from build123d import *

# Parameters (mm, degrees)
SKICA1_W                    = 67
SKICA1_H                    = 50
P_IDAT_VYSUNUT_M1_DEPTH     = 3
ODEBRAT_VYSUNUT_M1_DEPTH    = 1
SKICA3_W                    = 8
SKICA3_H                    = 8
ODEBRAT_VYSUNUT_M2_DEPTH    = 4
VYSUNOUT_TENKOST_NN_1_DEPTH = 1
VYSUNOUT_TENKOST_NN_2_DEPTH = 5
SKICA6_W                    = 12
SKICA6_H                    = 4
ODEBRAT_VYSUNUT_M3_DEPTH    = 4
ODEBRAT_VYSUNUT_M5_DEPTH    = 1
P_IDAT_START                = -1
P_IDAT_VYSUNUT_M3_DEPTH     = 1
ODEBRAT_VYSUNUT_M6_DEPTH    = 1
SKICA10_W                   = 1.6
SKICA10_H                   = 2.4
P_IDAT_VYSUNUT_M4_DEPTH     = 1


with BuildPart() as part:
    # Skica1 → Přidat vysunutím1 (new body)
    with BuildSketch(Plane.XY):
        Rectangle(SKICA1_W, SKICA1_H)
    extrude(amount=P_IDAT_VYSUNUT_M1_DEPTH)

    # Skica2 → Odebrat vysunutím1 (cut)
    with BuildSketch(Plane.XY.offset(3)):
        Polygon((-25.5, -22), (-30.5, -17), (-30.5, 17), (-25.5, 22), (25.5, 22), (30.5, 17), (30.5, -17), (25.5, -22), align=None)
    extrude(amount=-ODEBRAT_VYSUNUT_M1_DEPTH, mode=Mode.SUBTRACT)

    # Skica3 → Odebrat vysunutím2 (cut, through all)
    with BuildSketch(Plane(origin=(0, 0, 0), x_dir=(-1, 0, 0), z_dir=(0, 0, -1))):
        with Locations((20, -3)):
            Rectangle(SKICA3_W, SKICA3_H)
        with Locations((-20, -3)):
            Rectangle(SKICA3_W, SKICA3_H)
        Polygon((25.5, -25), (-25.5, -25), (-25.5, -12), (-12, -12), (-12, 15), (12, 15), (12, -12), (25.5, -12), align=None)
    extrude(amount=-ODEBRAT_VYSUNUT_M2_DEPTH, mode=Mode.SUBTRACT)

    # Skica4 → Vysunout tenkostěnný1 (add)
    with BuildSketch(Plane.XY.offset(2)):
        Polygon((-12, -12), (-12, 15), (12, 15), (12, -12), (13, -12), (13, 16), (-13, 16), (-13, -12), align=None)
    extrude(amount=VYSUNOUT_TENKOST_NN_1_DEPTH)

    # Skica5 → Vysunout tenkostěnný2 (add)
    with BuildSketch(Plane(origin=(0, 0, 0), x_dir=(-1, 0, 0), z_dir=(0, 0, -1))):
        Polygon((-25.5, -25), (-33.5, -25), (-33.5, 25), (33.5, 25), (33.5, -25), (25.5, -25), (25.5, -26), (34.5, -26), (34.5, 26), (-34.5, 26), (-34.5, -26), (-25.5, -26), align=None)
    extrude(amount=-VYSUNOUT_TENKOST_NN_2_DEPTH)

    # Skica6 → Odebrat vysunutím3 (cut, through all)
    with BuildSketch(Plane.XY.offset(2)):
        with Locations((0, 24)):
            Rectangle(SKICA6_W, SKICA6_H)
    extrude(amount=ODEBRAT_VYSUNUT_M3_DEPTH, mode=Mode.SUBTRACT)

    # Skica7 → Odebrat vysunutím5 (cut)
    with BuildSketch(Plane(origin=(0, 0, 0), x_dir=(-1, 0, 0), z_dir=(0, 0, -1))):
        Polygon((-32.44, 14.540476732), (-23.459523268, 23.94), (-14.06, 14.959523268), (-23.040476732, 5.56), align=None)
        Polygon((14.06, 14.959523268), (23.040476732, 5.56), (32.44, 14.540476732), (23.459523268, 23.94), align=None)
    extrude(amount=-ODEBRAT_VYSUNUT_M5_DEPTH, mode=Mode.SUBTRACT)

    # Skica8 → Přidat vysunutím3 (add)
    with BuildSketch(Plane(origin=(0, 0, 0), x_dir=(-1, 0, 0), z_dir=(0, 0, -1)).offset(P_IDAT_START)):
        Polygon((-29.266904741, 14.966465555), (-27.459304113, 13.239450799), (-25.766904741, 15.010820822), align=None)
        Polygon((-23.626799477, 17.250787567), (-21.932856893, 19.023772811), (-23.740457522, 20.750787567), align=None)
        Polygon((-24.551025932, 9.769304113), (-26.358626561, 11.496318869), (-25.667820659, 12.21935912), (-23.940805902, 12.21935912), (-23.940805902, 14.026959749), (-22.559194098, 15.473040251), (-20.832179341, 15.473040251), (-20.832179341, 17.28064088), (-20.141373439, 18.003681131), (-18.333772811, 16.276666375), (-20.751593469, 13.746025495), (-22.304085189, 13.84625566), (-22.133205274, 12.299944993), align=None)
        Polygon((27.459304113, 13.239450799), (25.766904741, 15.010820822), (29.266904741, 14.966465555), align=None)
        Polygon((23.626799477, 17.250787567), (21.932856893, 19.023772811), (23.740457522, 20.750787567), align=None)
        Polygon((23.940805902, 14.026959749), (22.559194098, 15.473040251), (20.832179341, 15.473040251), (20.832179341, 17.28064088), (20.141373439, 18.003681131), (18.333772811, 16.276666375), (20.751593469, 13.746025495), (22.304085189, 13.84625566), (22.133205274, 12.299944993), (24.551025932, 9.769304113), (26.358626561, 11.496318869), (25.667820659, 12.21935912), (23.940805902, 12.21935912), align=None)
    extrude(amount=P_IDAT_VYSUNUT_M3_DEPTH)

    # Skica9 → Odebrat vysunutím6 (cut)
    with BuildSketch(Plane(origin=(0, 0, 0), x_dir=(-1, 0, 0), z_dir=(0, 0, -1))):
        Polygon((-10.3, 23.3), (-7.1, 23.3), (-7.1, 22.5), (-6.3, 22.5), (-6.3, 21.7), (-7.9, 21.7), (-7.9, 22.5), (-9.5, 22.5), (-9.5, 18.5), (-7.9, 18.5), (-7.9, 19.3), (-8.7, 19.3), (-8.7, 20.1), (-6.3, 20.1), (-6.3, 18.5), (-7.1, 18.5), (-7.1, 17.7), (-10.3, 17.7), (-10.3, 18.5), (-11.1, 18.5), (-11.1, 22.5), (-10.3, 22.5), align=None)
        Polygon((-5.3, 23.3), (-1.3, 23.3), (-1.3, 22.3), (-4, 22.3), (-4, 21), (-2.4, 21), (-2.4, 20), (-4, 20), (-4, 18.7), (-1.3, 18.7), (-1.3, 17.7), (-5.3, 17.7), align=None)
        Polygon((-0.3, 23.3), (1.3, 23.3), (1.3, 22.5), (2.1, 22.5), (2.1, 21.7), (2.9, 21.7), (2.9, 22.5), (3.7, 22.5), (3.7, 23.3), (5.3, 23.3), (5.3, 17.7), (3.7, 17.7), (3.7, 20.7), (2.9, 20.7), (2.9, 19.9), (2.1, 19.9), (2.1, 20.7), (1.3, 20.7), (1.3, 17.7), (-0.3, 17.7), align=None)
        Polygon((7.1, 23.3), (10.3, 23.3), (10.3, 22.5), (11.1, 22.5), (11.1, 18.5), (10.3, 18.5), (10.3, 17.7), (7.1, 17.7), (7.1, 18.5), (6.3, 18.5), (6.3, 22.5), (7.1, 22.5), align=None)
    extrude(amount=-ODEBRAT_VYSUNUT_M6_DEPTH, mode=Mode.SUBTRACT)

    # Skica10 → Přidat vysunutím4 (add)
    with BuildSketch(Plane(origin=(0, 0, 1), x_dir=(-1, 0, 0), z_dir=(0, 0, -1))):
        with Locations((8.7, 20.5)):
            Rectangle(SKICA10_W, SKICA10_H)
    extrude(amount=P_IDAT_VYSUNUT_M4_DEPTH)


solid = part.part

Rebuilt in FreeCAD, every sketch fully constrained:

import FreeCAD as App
import Part
import Sketcher

V = App.Vector


def add_polygon(sketch, points):
    """Adds a closed chain of lines whose ends are joined by coincident constraints."""
    first, n = sketch.GeometryCount, len(points)
    for a, b in zip(points, points[1:] + points[:1]):
        sketch.addGeometry(Part.LineSegment(App.Vector(*a, 0), App.Vector(*b, 0)), False)
    for i in range(n):
        sketch.addConstraint(Sketcher.Constraint("Coincident", first + i, 2, first + (i + 1) % n, 1))

doc = App.newDocument("Part")
body = doc.addObject("PartDesign::Body", "Body")

sketch1 = doc.addObject("Sketcher::SketchObject", "Sketch")
body.addObject(sketch1)
sketch1.AttachmentSupport = (doc.XY_Plane, [""])
sketch1.MapMode = "FlatFace"
add_polygon(sketch1, [(-34, 25), (-34, -25), (34, -25), (34, 25)])
sketch1.addConstraint([
    Sketcher.Constraint("Vertical", 0),
    Sketcher.Constraint("Horizontal", 1),
    Sketcher.Constraint("Vertical", 2),
    Sketcher.Constraint("Horizontal", 3),
    Sketcher.Constraint("Symmetric", 0, 2, 2, 2, -1, 1),
    Sketcher.Constraint("DistanceX", 1, 1, 1, 2, 67.0),
    Sketcher.Constraint("DistanceY", 0, 2, 0, 1, 50.0),
])
pad1 = doc.addObject("PartDesign::Pad", "Pad")
body.addObject(pad1)
pad1.Profile = sketch1
pad1.Length = 3

sketch2 = doc.addObject("Sketcher::SketchObject", "Sketch001")
body.addObject(sketch2)
sketch2.AttachmentSupport = (doc.XY_Plane, [""])
sketch2.MapMode = "FlatFace"
sketch2.AttachmentOffset = App.Placement(V(0, 0, 3), App.Rotation())
add_polygon(sketch2, [(-30, -17), (-26, -22), (26, -22), (30, -17), (30, 17), (26, 22), (-26, 22), (-30, 17)])
sketch2.addConstraint([
    Sketcher.Constraint("Horizontal", 1),
    Sketcher.Constraint("Vertical", 3),
    Sketcher.Constraint("Horizontal", 5),
    Sketcher.Constraint("Vertical", 7),
    Sketcher.Constraint("Symmetric", 0, 2, 4, 2, -1, 1),
    Sketcher.Constraint("Symmetric", 2, 2, 6, 2, -1, 1),
    Sketcher.Constraint("Perpendicular", 0, 2),
    Sketcher.Constraint("Perpendicular", 2, 4),
    Sketcher.Constraint("Perpendicular", 4, 6),
    Sketcher.Constraint("Horizontal", 3, 2, 6, 2),
    Sketcher.Constraint("Vertical", 1, 2, 4, 2),
    Sketcher.Constraint("DistanceX", 1, 1, 1, 2, 51.0),
    Sketcher.Constraint("DistanceY", 3, 1, 3, 2, 34.0),
    Sketcher.Constraint("DistanceY", 0, 2, -1, 1, 22.0),
])
pocket1 = doc.addObject("PartDesign::Pocket", "Pocket")
body.addObject(pocket1)
pocket1.Profile = sketch2
pocket1.Length = 1

sketch3 = doc.addObject("Sketcher::SketchObject", "Sketch002")
body.addObject(sketch3)
sketch3.AttachmentSupport = (doc.XY_Plane, [""])
sketch3.MapMode = "FlatFace"
add_polygon(sketch3, [(-16, 1), (-16, -7), (-24, -7), (-24, 1)])
add_polygon(sketch3, [(24, 1), (24, -7), (16, -7), (16, 1)])
add_polygon(sketch3, [(26, -25), (-26, -25), (-26, -12), (-12, -12), (-12, 15), (12, 15), (12, -12), (26, -12)])
sketch3.addConstraint([
    Sketcher.Constraint("Vertical", 0),
    Sketcher.Constraint("Horizontal", 1),
    Sketcher.Constraint("Vertical", 2),
    Sketcher.Constraint("Horizontal", 3),
    Sketcher.Constraint("Vertical", 4),
    Sketcher.Constraint("Horizontal", 5),
    Sketcher.Constraint("Vertical", 6),
    Sketcher.Constraint("Horizontal", 7),
    Sketcher.Constraint("Horizontal", 8),
    Sketcher.Constraint("Vertical", 9),
    Sketcher.Constraint("Horizontal", 10),
    Sketcher.Constraint("Vertical", 11),
    Sketcher.Constraint("Horizontal", 12),
    Sketcher.Constraint("Vertical", 13),
    Sketcher.Constraint("Horizontal", 14),
    Sketcher.Constraint("Vertical", 15),
    Sketcher.Constraint("Symmetric", 1, 2, 4, 2, -2),
    Sketcher.Constraint("Symmetric", 3, 2, 6, 2, -2),
    Sketcher.Constraint("Symmetric", 10, 2, 13, 2, -2),
    Sketcher.Constraint("Equal", 10, 14),
    Sketcher.Constraint("Equal", 7, 0),
    Sketcher.Constraint("DistanceX", 1, 2, 1, 1, 8.0),
    Sketcher.Constraint("DistanceX", 8, 2, 8, 1, 51.0),
    Sketcher.Constraint("DistanceX", 12, 1, 12, 2, 24.0),
    Sketcher.Constraint("DistanceY", 9, 1, 9, 2, 13.0),
    Sketcher.Constraint("DistanceY", 11, 1, 11, 2, 27.0),
    Sketcher.Constraint("DistanceX", 0, 2, -1, 1, 16.0),
    Sketcher.Constraint("DistanceY", 0, 2, -1, 1, 7.0),
    Sketcher.Constraint("DistanceY", 8, 2, -1, 1, 25.0),
])
pocket2 = doc.addObject("PartDesign::Pocket", "Pocket001")
body.addObject(pocket2)
pocket2.Profile = sketch3
pocket2.Type = "ThroughAll"
pocket2.Reversed = True

sketch4 = doc.addObject("Sketcher::SketchObject", "Sketch003")
body.addObject(sketch4)
sketch4.AttachmentSupport = (doc.XY_Plane, [""])
sketch4.MapMode = "FlatFace"
sketch4.AttachmentOffset = App.Placement(V(0, 0, 2), App.Rotation())
add_polygon(sketch4, [(-12, -12), (-12, 15), (12, 15), (12, -12), (13, -12), (13, 16), (-13, 16), (-13, -12)])
sketch4.addConstraint([
    Sketcher.Constraint("Vertical", 0),
    Sketcher.Constraint("Horizontal", 1),
    Sketcher.Constraint("Vertical", 2),
    Sketcher.Constraint("Horizontal", 3),
    Sketcher.Constraint("Vertical", 4),
    Sketcher.Constraint("Horizontal", 5),
    Sketcher.Constraint("Vertical", 6),
    Sketcher.Constraint("Horizontal", 7),
    Sketcher.Constraint("Symmetric", 3, 2, 6, 2, -2),
    Sketcher.Constraint("Equal", 3, 7),
    Sketcher.Constraint("DistanceX", 1, 1, 1, 2, 24.0),
    Sketcher.Constraint("DistanceX", 3, 1, 3, 2, 1.0),
    Sketcher.Constraint("DistanceY", 0, 1, 0, 2, 27.0),
    Sketcher.Constraint("DistanceY", 4, 1, 4, 2, 28.0),
    Sketcher.Constraint("DistanceY", -1, 1, 0, 2, 15.0),
])
pad2 = doc.addObject("PartDesign::Pad", "Pad001")
body.addObject(pad2)
pad2.Profile = sketch4
pad2.Length = 1

sketch5 = doc.addObject("Sketcher::SketchObject", "Sketch004")
body.addObject(sketch5)
sketch5.AttachmentSupport = (doc.XY_Plane, [""])
sketch5.MapMode = "FlatFace"
add_polygon(sketch5, [(25.5, -25), (33.5, -25), (33.5, 25), (-33.5, 25), (-33.5, -25), (-25.5, -25), (-25.5, -26), (-34.5, -26), (-34.5, 26), (34.5, 26), (34.5, -26), (25.5, -26)])
sketch5.addConstraint([
    Sketcher.Constraint("Horizontal", 0),
    Sketcher.Constraint("Vertical", 1),
    Sketcher.Constraint("Horizontal", 2),
    Sketcher.Constraint("Vertical", 3),
    Sketcher.Constraint("Horizontal", 4),
    Sketcher.Constraint("Vertical", 5),
    Sketcher.Constraint("Horizontal", 6),
    Sketcher.Constraint("Vertical", 7),
    Sketcher.Constraint("Horizontal", 8),
    Sketcher.Constraint("Vertical", 9),
    Sketcher.Constraint("Horizontal", 10),
    Sketcher.Constraint("Vertical", 11),
    Sketcher.Constraint("Symmetric", 0, 2, 2, 2, -1, 1),
    Sketcher.Constraint("Symmetric", 6, 2, 8, 2, -1, 1),
    Sketcher.Constraint("Symmetric", 5, 2, 10, 2, -2),
    Sketcher.Constraint("Horizontal", 0, 2, 3, 2),
    Sketcher.Constraint("DistanceX", 0, 1, 0, 2, 8.0),
    Sketcher.Constraint("DistanceX", 2, 2, 2, 1, 67.0),
    Sketcher.Constraint("DistanceX", 6, 2, 6, 1, 9.0),
    Sketcher.Constraint("DistanceY", 1, 1, 1, 2, 50.0),
    Sketcher.Constraint("DistanceY", 5, 2, 5, 1, 1.0),
])
pad3 = doc.addObject("PartDesign::Pad", "Pad002")
body.addObject(pad3)
pad3.Profile = sketch5
pad3.Length = 5

sketch6 = doc.addObject("Sketcher::SketchObject", "Sketch005")
body.addObject(sketch6)
sketch6.AttachmentSupport = (doc.XY_Plane, [""])
sketch6.MapMode = "FlatFace"
sketch6.AttachmentOffset = App.Placement(V(0, 0, 2), App.Rotation())
add_polygon(sketch6, [(-6, 26), (-6, 22), (6, 22), (6, 26)])
sketch6.addConstraint([
    Sketcher.Constraint("Vertical", 0),
    Sketcher.Constraint("Horizontal", 1),
    Sketcher.Constraint("Vertical", 2),
    Sketcher.Constraint("Horizontal", 3),
    Sketcher.Constraint("DistanceX", 1, 1, 1, 2, 12.0),
    Sketcher.Constraint("DistanceY", 0, 2, 0, 1, 4.0),
    Sketcher.Constraint("DistanceX", 0, 2, -1, 1, 6.0),
    Sketcher.Constraint("DistanceY", -1, 1, 0, 2, 22.0),
])
pocket3 = doc.addObject("PartDesign::Pocket", "Pocket002")
body.addObject(pocket3)
pocket3.Profile = sketch6
pocket3.Type = "ThroughAll"
pocket3.Reversed = True

sketch7 = doc.addObject("Sketcher::SketchObject", "Sketch006")
body.addObject(sketch7)
sketch7.AttachmentSupport = (doc.XY_Plane, [""])
sketch7.MapMode = "FlatFace"
add_polygon(sketch7, [(23.459523, 23.94), (32.44, 14.540477), (23.040477, 5.56), (14.06, 14.959523)])
add_polygon(sketch7, [(-14.06, 14.959523), (-23.040477, 5.56), (-32.44, 14.540477), (-23.459523, 23.94)])
sketch7.addConstraint([
    Sketcher.Constraint("Symmetric", 1, 2, 4, 2, -2),
    Sketcher.Constraint("Symmetric", 0, 2, 5, 2, -2),
    Sketcher.Constraint("Symmetric", 3, 2, 6, 2, -2),
    Sketcher.Constraint("Symmetric", 2, 2, 7, 2, -2),
    Sketcher.Constraint("Perpendicular", 0, 1),
    Sketcher.Constraint("Perpendicular", 1, 2),
    Sketcher.Constraint("Perpendicular", 2, 3),
    Sketcher.Constraint("Equal", 0, 1),
    Sketcher.Constraint("Distance", 0, 13.0),
    Sketcher.Constraint("DistanceX", 4, 2, 3, 2, 46.5),
    Sketcher.Constraint("DistanceX", -1, 1, 0, 2, 32.44),
    Sketcher.Constraint("DistanceY", -1, 1, 1, 2, 5.56),
])
pocket4 = doc.addObject("PartDesign::Pocket", "Pocket003")
body.addObject(pocket4)
pocket4.Profile = sketch7
pocket4.Length = 1
pocket4.Reversed = True

sketch8 = doc.addObject("Sketcher::SketchObject", "Sketch007")
body.addObject(sketch8)
sketch8.AttachmentSupport = (doc.XY_Plane, [""])
sketch8.MapMode = "FlatFace"
sketch8.AttachmentOffset = App.Placement(V(0, 0, 1), App.Rotation())
add_polygon(sketch8, [(29.3, 15), (27.5, 13.2), (25.8, 15)])
add_polygon(sketch8, [(23.6, 17.3), (21.9, 19), (23.7, 20.8)])
add_polygon(sketch8, [(26.4, 11.5), (24.6, 9.8), (22.1, 12.3), (22.3, 13.8), (20.8, 13.7), (18.3, 16.3), (20.1, 18), (20.8, 17.3), (20.8, 15.5), (22.6, 15.5), (23.9, 14), (23.9, 12.2), (25.7, 12.2)])
add_polygon(sketch8, [(-25.8, 15), (-27.5, 13.2), (-29.3, 15)])
add_polygon(sketch8, [(-21.9, 19), (-23.6, 17.3), (-23.7, 20.8)])
add_polygon(sketch8, [(-23.9, 14), (-22.6, 15.5), (-20.8, 15.5), (-20.8, 17.3), (-20.1, 18), (-18.3, 16.3), (-20.8, 13.7), (-22.3, 13.8), (-22.1, 12.3), (-24.6, 9.8), (-26.4, 11.5), (-25.7, 12.2), (-23.9, 12.2)])
sketch8.addConstraint([
    Sketcher.Constraint("Vertical", 13),
    Sketcher.Constraint("Horizontal", 14),
    Sketcher.Constraint("Vertical", 16),
    Sketcher.Constraint("Horizontal", 17),
    Sketcher.Constraint("Horizontal", 26),
    Sketcher.Constraint("Vertical", 27),
    Sketcher.Constraint("Horizontal", 36),
    Sketcher.Constraint("Vertical", 37),
    Sketcher.Constraint("Symmetric", 0, 2, 19, 2, -2),
    Sketcher.Constraint("Symmetric", 2, 2, 20, 2, -2),
    Sketcher.Constraint("Symmetric", 1, 2, 21, 2, -2),
    Sketcher.Constraint("Symmetric", 5, 2, 22, 2, -2),
    Sketcher.Constraint("Symmetric", 4, 2, 23, 2, -2),
    Sketcher.Constraint("Symmetric", 3, 2, 24, 2, -2),
    Sketcher.Constraint("Symmetric", 14, 2, 25, 2, -2),
    Sketcher.Constraint("Symmetric", 12, 2, 27, 2, -2),
    Sketcher.Constraint("Symmetric", 11, 2, 28, 2, -2),
    Sketcher.Constraint("Symmetric", 10, 2, 29, 2, -2),
    Sketcher.Constraint("Symmetric", 9, 2, 30, 2, -2),
    Sketcher.Constraint("Symmetric", 8, 2, 31, 2, -2),
    Sketcher.Constraint("Symmetric", 7, 2, 32, 2, -2),
    Sketcher.Constraint("Symmetric", 6, 2, 33, 2, -2),
    Sketcher.Constraint("Symmetric", 18, 2, 34, 2, -2),
    Sketcher.Constraint("Symmetric", 17, 2, 35, 2, -2),
    Sketcher.Constraint("Symmetric", 15, 2, 37, 2, -2),
    Sketcher.Constraint("Perpendicular", 0, 1),
    Sketcher.Constraint("Parallel", 1, 3),
    Sketcher.Constraint("Perpendicular", 3, 4),
    Sketcher.Constraint("Parallel", 4, 6),
    Sketcher.Constraint("Perpendicular", 6, 7),
    Sketcher.Constraint("Parallel", 7, 10),
    Sketcher.Constraint("Perpendicular", 10, 11),
    Sketcher.Constraint("Perpendicular", 11, 12),
    Sketcher.Constraint("Parallel", 12, 15),
    Sketcher.Constraint("Parallel", 15, 18),
    Sketcher.Constraint("Equal", 14, 17),
    Sketcher.Constraint("Equal", 13, 16),
    Sketcher.Constraint("Equal", 0, 4),
    Sketcher.Constraint("Equal", 4, 6),
    Sketcher.Constraint("Equal", 8, 9),
    Sketcher.Constraint("Equal", 7, 10),
    Sketcher.Constraint("Equal", 6, 11),
    Sketcher.Constraint("Equal", 12, 18),
    Sketcher.Constraint("Distance", 12, 1.0),
    Sketcher.Constraint("Distance", 15, 2.0),
    Sketcher.Constraint("Distance", 0, 2.5),
    Sketcher.Constraint("Distance", 7, 3.5),
    Sketcher.Constraint("DistanceX", 1, 2, 2, 2, 3.5),
    Sketcher.Constraint("DistanceY", 5, 2, 4, 2, 3.5),
    Sketcher.Constraint("DistanceY", 13, 2, 13, 1, 1.807601),
    Sketcher.Constraint("DistanceX", -1, 1, 5, 2, 23.626799),
    Sketcher.Constraint("DistanceX", 1, 2, 0, 2, 1.692399),
    Sketcher.Constraint("DistanceX", 7, 2, 1, 2, 3.633699),
    Sketcher.Constraint("DistanceX", 9, 2, 14, 2, 1.807601),
    Sketcher.Constraint("DistanceY", 20, 2, 10, 2, 1.310201),
    Sketcher.Constraint("DistanceX", 20, 2, 9, 2, 50.018498),
    Sketcher.Constraint("DistanceY", -1, 1, 0, 2, 13.239451),
    Sketcher.Constraint("DistanceY", 1, 2, 3, 2, 4.012952),
    Sketcher.Constraint("DistanceX", 7, 2, 8, 2, 0.17088),
])
pad4 = doc.addObject("PartDesign::Pad", "Pad003")
body.addObject(pad4)
pad4.Profile = sketch8
pad4.Length = 1
pad4.Reversed = True

sketch9 = doc.addObject("Sketcher::SketchObject", "Sketch008")
body.addObject(sketch9)
sketch9.AttachmentSupport = (doc.XY_Plane, [""])
sketch9.MapMode = "FlatFace"
add_polygon(sketch9, [(7.1, 23.3), (10.3, 23.3), (10.3, 22.5), (11.1, 22.5), (11.1, 18.5), (10.3, 18.5), (10.3, 17.7), (7.1, 17.7), (7.1, 18.5), (6.3, 18.5), (6.3, 20.1), (8.7, 20.1), (8.7, 19.3), (7.9, 19.3), (7.9, 18.5), (9.5, 18.5), (9.5, 22.5), (7.9, 22.5), (7.9, 21.7), (6.3, 21.7), (6.3, 22.5), (7.1, 22.5)])
add_polygon(sketch9, [(1.3, 23.3), (5.3, 23.3), (5.3, 17.7), (1.3, 17.7), (1.3, 18.7), (4, 18.7), (4, 20), (2.4, 20), (2.4, 21), (4, 21), (4, 22.3), (1.3, 22.3)])
add_polygon(sketch9, [(-1.3, 23.3), (0.3, 23.3), (0.3, 17.7), (-1.3, 17.7), (-1.3, 20.7), (-2.1, 20.7), (-2.1, 19.9), (-2.9, 19.9), (-2.9, 20.7), (-3.7, 20.7), (-3.7, 17.7), (-5.3, 17.7), (-5.3, 23.3), (-3.7, 23.3), (-3.7, 22.5), (-2.9, 22.5), (-2.9, 21.7), (-2.1, 21.7), (-2.1, 22.5), (-1.3, 22.5)])
add_polygon(sketch9, [(-10.3, 23.3), (-7.1, 23.3), (-7.1, 22.5), (-6.3, 22.5), (-6.3, 18.5), (-7.1, 18.5), (-7.1, 17.7), (-10.3, 17.7), (-10.3, 18.5), (-11.1, 18.5), (-11.1, 22.5), (-10.3, 22.5)])
sketch9.addConstraint([
    Sketcher.Constraint("Horizontal", 0),
    Sketcher.Constraint("Vertical", 1),
    Sketcher.Constraint("Horizontal", 2),
    Sketcher.Constraint("Vertical", 3),
    Sketcher.Constraint("Horizontal", 4),
    Sketcher.Constraint("Vertical", 5),
    Sketcher.Constraint("Horizontal", 6),
    Sketcher.Constraint("Vertical", 7),
    Sketcher.Constraint("Horizontal", 8),
    Sketcher.Constraint("Vertical", 9),
    Sketcher.Constraint("Horizontal", 10),
    Sketcher.Constraint("Vertical", 11),
    Sketcher.Constraint("Horizontal", 12),
    Sketcher.Constraint("Vertical", 13),
    Sketcher.Constraint("Horizontal", 14),
    Sketcher.Constraint("Vertical", 15),
    Sketcher.Constraint("Horizontal", 16),
    Sketcher.Constraint("Vertical", 17),
    Sketcher.Constraint("Horizontal", 18),
    Sketcher.Constraint("Vertical", 19),
    Sketcher.Constraint("Horizontal", 20),
    Sketcher.Constraint("Vertical", 21),
    Sketcher.Constraint("Horizontal", 22),
    Sketcher.Constraint("Vertical", 23),
    Sketcher.Constraint("Horizontal", 24),
    Sketcher.Constraint("Vertical", 25),
    Sketcher.Constraint("Horizontal", 26),
    Sketcher.Constraint("Vertical", 27),
    Sketcher.Constraint("Horizontal", 28),
    Sketcher.Constraint("Vertical", 29),
    Sketcher.Constraint("Horizontal", 30),
    Sketcher.Constraint("Vertical", 31),
    Sketcher.Constraint("Horizontal", 32),
    Sketcher.Constraint("Vertical", 33),
    Sketcher.Constraint("Horizontal", 34),
    Sketcher.Constraint("Vertical", 35),
    Sketcher.Constraint("Horizontal", 36),
    Sketcher.Constraint("Vertical", 37),
    Sketcher.Constraint("Horizontal", 38),
    Sketcher.Constraint("Vertical", 39),
    Sketcher.Constraint("Horizontal", 40),
    Sketcher.Constraint("Vertical", 41),
    Sketcher.Constraint("Horizontal", 42),
    Sketcher.Constraint("Vertical", 43),
    Sketcher.Constraint("Horizontal", 44),
    Sketcher.Constraint("Vertical", 45),
    Sketcher.Constraint("Horizontal", 46),
    Sketcher.Constraint("Vertical", 47),
    Sketcher.Constraint("Horizontal", 48),
    Sketcher.Constraint("Vertical", 49),
    Sketcher.Constraint("Horizontal", 50),
    Sketcher.Constraint("Vertical", 51),
    Sketcher.Constraint("Horizontal", 52),
    Sketcher.Constraint("Vertical", 53),
    Sketcher.Constraint("Horizontal", 54),
    Sketcher.Constraint("Vertical", 55),
    Sketcher.Constraint("Horizontal", 56),
    Sketcher.Constraint("Vertical", 57),
    Sketcher.Constraint("Horizontal", 58),
    Sketcher.Constraint("Vertical", 59),
    Sketcher.Constraint("Horizontal", 60),
    Sketcher.Constraint("Vertical", 61),
    Sketcher.Constraint("Horizontal", 62),
    Sketcher.Constraint("Vertical", 63),
    Sketcher.Constraint("Horizontal", 64),
    Sketcher.Constraint("Vertical", 65),
    Sketcher.Constraint("Symmetric", 24, 2, 36, 2, -2),
    Sketcher.Constraint("Symmetric", 23, 2, 44, 2, -2),
    Sketcher.Constraint("Symmetric", 33, 2, 53, 2, -2),
    Sketcher.Constraint("Symmetric", 21, 2, 54, 2, -2),
    Sketcher.Constraint("Symmetric", 19, 2, 56, 2, -2),
    Sketcher.Constraint("Symmetric", 8, 2, 57, 2, -2),
    Sketcher.Constraint("Symmetric", 6, 2, 59, 2, -2),
    Sketcher.Constraint("Symmetric", 4, 2, 61, 2, -2),
    Sketcher.Constraint("Symmetric", 2, 2, 63, 2, -2),
    Sketcher.Constraint("Horizontal", 4, 2, 7, 2),
    Sketcher.Constraint("Horizontal", 8, 2, 13, 2),
    Sketcher.Constraint("Horizontal", 2, 2, 15, 2),
    Sketcher.Constraint("Horizontal", 16, 2, 19, 2),
    Sketcher.Constraint("Horizontal", 21, 2, 22, 2),
    Sketcher.Constraint("Horizontal", 6, 2, 23, 2),
    Sketcher.Constraint("Horizontal", 38, 2, 41, 2),
    Sketcher.Constraint("Horizontal", 34, 2, 45, 2),
    Sketcher.Constraint("Horizontal", 20, 2, 47, 2),
    Sketcher.Constraint("Horizontal", 18, 2, 49, 2),
    Sketcher.Constraint("Horizontal", 48, 2, 51, 2),
    Sketcher.Constraint("Vertical", 1, 2, 4, 2),
    Sketcher.Constraint("Vertical", 13, 2, 16, 2),
    Sketcher.Constraint("Vertical", 7, 2, 20, 2),
    Sketcher.Constraint("Vertical", 27, 2, 30, 2),
    Sketcher.Constraint("Vertical", 25, 2, 32, 2),
    Sketcher.Constraint("Vertical", 43, 2, 46, 2),
    Sketcher.Constraint("Vertical", 41, 2, 48, 2),
    Sketcher.Constraint("Vertical", 39, 2, 50, 2),
    Sketcher.Constraint("Vertical", 61, 2, 64, 2),
    Sketcher.Constraint("Equal", 4, 8),
    Sketcher.Constraint("Equal", 8, 12),
    Sketcher.Constraint("Equal", 16, 18),
    Sketcher.Constraint("Equal", 18, 28),
    Sketcher.Constraint("Equal", 30, 34),
    Sketcher.Constraint("Equal", 20, 38),
    Sketcher.Constraint("Equal", 38, 40),
    Sketcher.Constraint("Equal", 40, 42),
    Sketcher.Constraint("Equal", 36, 44),
    Sketcher.Constraint("Equal", 64, 1),
    Sketcher.Constraint("Equal", 24, 3),
    Sketcher.Constraint("Equal", 1, 5),
    Sketcher.Constraint("Equal", 46, 9),
    Sketcher.Constraint("Equal", 7, 11),
    Sketcher.Constraint("Equal", 11, 13),
    Sketcher.Constraint("Equal", 13, 17),
    Sketcher.Constraint("Equal", 25, 29),
    Sketcher.Constraint("Equal", 27, 31),
    Sketcher.Constraint("Equal", 29, 33),
    Sketcher.Constraint("Equal", 21, 39),
    Sketcher.Constraint("DistanceX", 22, 1, 22, 2, 4.0),
    Sketcher.Constraint("DistanceY", 25, 1, 25, 2, 1.0),
    Sketcher.Constraint("DistanceY", 37, 1, 37, 2, 3.0),
    Sketcher.Constraint("DistanceX", 0, 1, 0, 2, 3.2),
    Sketcher.Constraint("DistanceX", 26, 1, 26, 2, 2.7),
    Sketcher.Constraint("DistanceX", -1, 1, 26, 2, 4.0),
    Sketcher.Constraint("DistanceY", -1, 1, 27, 2, 20.0),
    Sketcher.Constraint("DistanceX", -1, 1, 0, 2, 10.3),
])
pocket5 = doc.addObject("PartDesign::Pocket", "Pocket004")
body.addObject(pocket5)
pocket5.Profile = sketch9
pocket5.Length = 1
pocket5.Reversed = True

sketch10 = doc.addObject("Sketcher::SketchObject", "Sketch009")
body.addObject(sketch10)
sketch10.AttachmentSupport = (doc.XY_Plane, [""])
sketch10.MapMode = "FlatFace"
sketch10.AttachmentOffset = App.Placement(V(0, 0, 1), App.Rotation())
add_polygon(sketch10, [(-7.9, 21.7), (-7.9, 19.3), (-9.5, 19.3), (-9.5, 21.7)])
sketch10.addConstraint([
    Sketcher.Constraint("Vertical", 0),
    Sketcher.Constraint("Horizontal", 1),
    Sketcher.Constraint("Vertical", 2),
    Sketcher.Constraint("Horizontal", 3),
    Sketcher.Constraint("DistanceX", 1, 2, 1, 1, 1.6),
    Sketcher.Constraint("DistanceY", 0, 2, 0, 1, 2.4),
    Sketcher.Constraint("DistanceX", 0, 2, -1, 1, 7.9),
    Sketcher.Constraint("DistanceY", -1, 1, 0, 2, 19.3),
])
pad5 = doc.addObject("PartDesign::Pad", "Pad004")
body.addObject(pad5)
pad5.Profile = sketch10
pad5.Length = 1
pad5.Reversed = True

doc.recompute()
